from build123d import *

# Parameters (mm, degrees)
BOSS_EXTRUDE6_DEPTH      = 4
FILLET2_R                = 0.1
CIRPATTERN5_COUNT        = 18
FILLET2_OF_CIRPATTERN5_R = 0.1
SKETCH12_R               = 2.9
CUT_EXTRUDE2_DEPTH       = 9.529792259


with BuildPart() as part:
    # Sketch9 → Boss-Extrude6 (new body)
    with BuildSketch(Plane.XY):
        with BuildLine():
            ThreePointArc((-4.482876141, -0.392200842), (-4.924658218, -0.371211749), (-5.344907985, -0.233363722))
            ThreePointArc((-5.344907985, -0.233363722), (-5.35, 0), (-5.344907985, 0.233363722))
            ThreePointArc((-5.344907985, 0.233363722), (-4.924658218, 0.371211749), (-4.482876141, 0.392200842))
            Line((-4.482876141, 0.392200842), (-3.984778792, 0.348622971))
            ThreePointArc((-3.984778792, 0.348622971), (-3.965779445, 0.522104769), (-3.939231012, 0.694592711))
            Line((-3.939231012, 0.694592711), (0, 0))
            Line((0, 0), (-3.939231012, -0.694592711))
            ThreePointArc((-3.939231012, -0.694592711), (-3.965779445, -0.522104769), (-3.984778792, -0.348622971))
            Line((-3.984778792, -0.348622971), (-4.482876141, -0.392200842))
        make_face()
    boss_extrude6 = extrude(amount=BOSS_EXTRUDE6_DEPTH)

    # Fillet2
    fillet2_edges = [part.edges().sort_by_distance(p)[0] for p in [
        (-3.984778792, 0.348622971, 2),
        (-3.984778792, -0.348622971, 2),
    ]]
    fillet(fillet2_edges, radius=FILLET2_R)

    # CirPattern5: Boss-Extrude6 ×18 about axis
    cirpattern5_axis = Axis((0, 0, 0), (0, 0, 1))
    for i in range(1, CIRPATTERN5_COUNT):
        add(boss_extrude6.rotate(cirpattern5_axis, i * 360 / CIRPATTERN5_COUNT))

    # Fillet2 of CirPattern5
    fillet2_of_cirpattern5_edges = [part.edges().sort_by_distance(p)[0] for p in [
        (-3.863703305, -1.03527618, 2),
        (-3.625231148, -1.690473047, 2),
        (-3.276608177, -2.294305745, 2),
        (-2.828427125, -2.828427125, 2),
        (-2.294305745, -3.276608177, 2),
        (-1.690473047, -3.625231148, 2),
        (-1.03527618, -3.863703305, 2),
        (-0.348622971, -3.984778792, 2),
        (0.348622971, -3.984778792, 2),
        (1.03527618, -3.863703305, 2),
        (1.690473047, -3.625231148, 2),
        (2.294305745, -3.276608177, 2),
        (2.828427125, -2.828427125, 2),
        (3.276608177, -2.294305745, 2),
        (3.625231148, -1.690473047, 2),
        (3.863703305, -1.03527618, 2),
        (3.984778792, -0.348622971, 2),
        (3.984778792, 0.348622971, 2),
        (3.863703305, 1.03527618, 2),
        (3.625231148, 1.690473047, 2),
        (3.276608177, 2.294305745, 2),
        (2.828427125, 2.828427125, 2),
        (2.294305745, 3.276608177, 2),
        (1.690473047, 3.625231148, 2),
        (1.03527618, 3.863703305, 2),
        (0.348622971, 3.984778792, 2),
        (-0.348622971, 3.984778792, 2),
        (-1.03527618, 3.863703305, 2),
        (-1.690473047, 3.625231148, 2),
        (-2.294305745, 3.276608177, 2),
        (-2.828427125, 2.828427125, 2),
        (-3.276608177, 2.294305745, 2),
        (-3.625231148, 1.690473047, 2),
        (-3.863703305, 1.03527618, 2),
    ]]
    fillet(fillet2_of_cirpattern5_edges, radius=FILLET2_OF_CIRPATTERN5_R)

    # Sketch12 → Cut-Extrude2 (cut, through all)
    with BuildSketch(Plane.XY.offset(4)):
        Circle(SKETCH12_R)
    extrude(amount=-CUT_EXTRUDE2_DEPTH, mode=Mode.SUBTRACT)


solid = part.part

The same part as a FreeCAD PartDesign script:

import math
import FreeCAD as App
import Part
import Sketcher
from FreeCAD import Vector
Q = App.Units.Quantity


def edges_at(feature, points):
    """Names of the edges that pass closest to the given points."""
    edges = feature.Shape.Edges
    near = lambda p: min(range(len(edges)), key=lambda i: edges[i].distToShape(Part.Vertex(*p))[0])
    return sorted({f"Edge{near(p) + 1}" for p in points})

doc = App.newDocument("Part")
params = doc.addObject("Spreadsheet::Sheet", "Params")
for row, (alias, value) in enumerate([
    ("sketch1_radius", "4 mm"),
    ("sketch1_radius2", "5.349999 mm"),
    ("sketch1_length", "0.5 mm"),
    ("pad1_length", "4 mm"),
    ("fillet_radius", "0.1 mm"),
    ("fillet2_radius", "0.1 mm"),
    ("sketch2_diameter", "5.8 mm"),
], start=1):
    params.set(f"A{row}", alias)
    params.set(f"B{row}", "=" + value)
    params.setAlias(f"B{row}", alias)

body = doc.addObject("PartDesign::Body", "Body")

sketch1 = body.newObject("Sketcher::SketchObject", "Sketch")
sketch1.AttachmentSupport = (doc.getObject("XY_Plane"), [""])
sketch1.MapMode = "FlatFace"
sketch1.addGeometry(Part.ArcOfCircle(Part.Circle(Vector(-4.63, 1.25, 0), Vector(0, 0, 1), 1.65), math.radians(-116), math.radians(-85)), False)
sketch1.addGeometry(Part.LineSegment(Vector(-4.48, -0.39, 0), Vector(-3.98, -0.35, 0)), False)
sketch1.addGeometry(Part.ArcOfCircle(Part.Circle(Vector(0, 0, 0), Vector(0, 0, 1), 4), math.radians(-175), math.radians(-170)), False)
sketch1.addGeometry(Part.LineSegment(Vector(-3.94, -0.69, 0), Vector(0, 0, 0)), False)
sketch1.addGeometry(Part.LineSegment(Vector(0, 0, 0), Vector(-3.94, 0.69, 0)), False)
sketch1.addGeometry(Part.ArcOfCircle(Part.Circle(Vector(0, 0, 0), Vector(0, 0, 1), 4), math.radians(170), math.radians(175)), False)
sketch1.addGeometry(Part.LineSegment(Vector(-3.98, 0.35, 0), Vector(-4.48, 0.39, 0)), False)
sketch1.addGeometry(Part.ArcOfCircle(Part.Circle(Vector(-4.63, -1.25, 0), Vector(0, 0, 1), 1.65), math.radians(85), math.radians(116)), False)
sketch1.addGeometry(Part.ArcOfCircle(Part.Circle(Vector(0, 0, 0), Vector(0, 0, 1), 5.35), math.radians(177.5), math.radians(182.5)), False)
sketch1.addConstraint(Sketcher.Constraint("Tangent", 0, 2, 1, 1))
sketch1.addConstraint(Sketcher.Constraint("Coincident", 1, 2, 2, 1))
sketch1.addConstraint(Sketcher.Constraint("Coincident", 2, 2, 3, 1))
sketch1.addConstraint(Sketcher.Constraint("Coincident", 3, 2, 4, 1))
sketch1.addConstraint(Sketcher.Constraint("Coincident", 4, 2, 5, 1))
sketch1.addConstraint(Sketcher.Constraint("Coincident", 5, 2, 6, 1))
sketch1.addConstraint(Sketcher.Constraint("Tangent", 6, 2, 7, 1))
sketch1.addConstraint(Sketcher.Constraint("Coincident", 7, 2, 8, 1))
sketch1.addConstraint(Sketcher.Constraint("Coincident", 8, 2, 0, 1))
sketch1.addConstraint(Sketcher.Constraint("Coincident", 2, 3, -1, 1))
sketch1.addConstraint(Sketcher.Constraint("Coincident", 5, 3, -1, 1))
sketch1.addConstraint(Sketcher.Constraint("Coincident", 8, 3, -1, 1))
sketch1.addConstraint(Sketcher.Constraint("Coincident", 3, 2, -1, 1))
sketch1.addConstraint(Sketcher.Constraint("Equal", 2, 5))
sketch1.addConstraint(Sketcher.Constraint("Equal", 0, 7))
sketch1.addConstraint(Sketcher.Constraint("Symmetric", 0, 3, 7, 3, -1))
sketch1.addConstraint(Sketcher.Constraint("Vertical", 2, 2, 4, 2))
sketch1.addConstraint(Sketcher.Constraint("Vertical", 1, 2, 5, 2))
sketch1.addConstraint(Sketcher.Constraint("Radius", 2, 4.0))
sketch1.addConstraint(Sketcher.Constraint("Angle", 1, Q("5 deg")))
sketch1.addConstraint(Sketcher.Constraint("Angle", 3, Q("10 deg")))
sketch1.addConstraint(Sketcher.Constraint("Radius", 8, 5.349999))
sketch1.addConstraint(Sketcher.Constraint("Distance", 1, 0.5))
sketch1.addConstraint(Sketcher.Constraint("Radius", 0, 1.646203))
sketch1.addConstraint(Sketcher.Constraint("DistanceY", 0, 2, -1, 1, 0.392201))
sketch1.setExpression("Constraints[18]", "Params.sketch1_radius")
sketch1.setExpression("Constraints[21]", "Params.sketch1_radius2")
sketch1.setExpression("Constraints[22]", "Params.sketch1_length")
pad1 = body.newObject("PartDesign::Pad", "Pad")
pad1.Profile = sketch1
pad1.setExpression("Length", "Params.pad1_length")
doc.recompute()

fillet = body.newObject("PartDesign::Fillet", "Fillet")
fillet.Base = (pad1, edges_at(pad1, [(-3.985, 0.349, 2), (-3.985, -0.349, 2)]))
fillet.setExpression("Radius", "Params.fillet_radius")
doc.recompute()

polarpattern = body.newObject("PartDesign::PolarPattern", "PolarPattern")
polarpattern.Originals = [pad1]
polarpattern.Axis = (doc.getObject("Z_Axis"), [""])
polarpattern.Angle = 360
polarpattern.Occurrences = 18
body.Tip = polarpattern
doc.recompute()

fillet2 = body.newObject("PartDesign::Fillet", "Fillet001")
fillet2.Base = (polarpattern, edges_at(polarpattern, [
    (-3.864, -1.035, 2),
    (-3.625, -1.69, 2),
    (-3.277, -2.294, 2),
    (-2.828, -2.828, 2),
    (-2.294, -3.277, 2),
    (-1.69, -3.625, 2),
    (-1.035, -3.864, 2),
    (-0.349, -3.985, 2),
    (0.349, -3.985, 2),
    (1.035, -3.864, 2),
    (1.69, -3.625, 2),
    (2.294, -3.277, 2),
    (2.828, -2.828, 2),
    (3.277, -2.294, 2),
    (3.625, -1.69, 2),
    (3.864, -1.035, 2),
    (3.985, -0.349, 2),
    (3.985, 0.349, 2),
    (3.864, 1.035, 2),
    (3.625, 1.69, 2),
    (3.277, 2.294, 2),
    (2.828, 2.828, 2),
    (2.294, 3.277, 2),
    (1.69, 3.625, 2),
    (1.035, 3.864, 2),
    (0.349, 3.985, 2),
    (-0.349, 3.985, 2),
    (-1.035, 3.864, 2),
    (-1.69, 3.625, 2),
    (-2.294, 3.277, 2),
    (-2.828, 2.828, 2),
    (-3.277, 2.294, 2),
    (-3.625, 1.69, 2),
    (-3.864, 1.035, 2),
]))
fillet2.setExpression("Radius", "Params.fillet2_radius")

sketch2 = body.newObject("Sketcher::SketchObject", "Sketch001")
sketch2.AttachmentSupport = (doc.getObject("XY_Plane"), [""])
sketch2.MapMode = "FlatFace"
sketch2.AttachmentOffset = App.Placement(Vector(0, 0, 4), App.Rotation())
sketch2.addGeometry(Part.Circle(Vector(0, 0, 0), Vector(0, 0, 1), 2.9), False)
sketch2.addConstraint(Sketcher.Constraint("Coincident", 0, 3, -1, 1))
sketch2.addConstraint(Sketcher.Constraint("Diameter", 0, 5.8))
sketch2.setExpression("Constraints[1]", "Params.sketch2_diameter")
pocket1 = body.newObject("PartDesign::Pocket", "Pocket")
pocket1.Profile = sketch2
pocket1.Type = "ThroughAll"

doc.recompute()
